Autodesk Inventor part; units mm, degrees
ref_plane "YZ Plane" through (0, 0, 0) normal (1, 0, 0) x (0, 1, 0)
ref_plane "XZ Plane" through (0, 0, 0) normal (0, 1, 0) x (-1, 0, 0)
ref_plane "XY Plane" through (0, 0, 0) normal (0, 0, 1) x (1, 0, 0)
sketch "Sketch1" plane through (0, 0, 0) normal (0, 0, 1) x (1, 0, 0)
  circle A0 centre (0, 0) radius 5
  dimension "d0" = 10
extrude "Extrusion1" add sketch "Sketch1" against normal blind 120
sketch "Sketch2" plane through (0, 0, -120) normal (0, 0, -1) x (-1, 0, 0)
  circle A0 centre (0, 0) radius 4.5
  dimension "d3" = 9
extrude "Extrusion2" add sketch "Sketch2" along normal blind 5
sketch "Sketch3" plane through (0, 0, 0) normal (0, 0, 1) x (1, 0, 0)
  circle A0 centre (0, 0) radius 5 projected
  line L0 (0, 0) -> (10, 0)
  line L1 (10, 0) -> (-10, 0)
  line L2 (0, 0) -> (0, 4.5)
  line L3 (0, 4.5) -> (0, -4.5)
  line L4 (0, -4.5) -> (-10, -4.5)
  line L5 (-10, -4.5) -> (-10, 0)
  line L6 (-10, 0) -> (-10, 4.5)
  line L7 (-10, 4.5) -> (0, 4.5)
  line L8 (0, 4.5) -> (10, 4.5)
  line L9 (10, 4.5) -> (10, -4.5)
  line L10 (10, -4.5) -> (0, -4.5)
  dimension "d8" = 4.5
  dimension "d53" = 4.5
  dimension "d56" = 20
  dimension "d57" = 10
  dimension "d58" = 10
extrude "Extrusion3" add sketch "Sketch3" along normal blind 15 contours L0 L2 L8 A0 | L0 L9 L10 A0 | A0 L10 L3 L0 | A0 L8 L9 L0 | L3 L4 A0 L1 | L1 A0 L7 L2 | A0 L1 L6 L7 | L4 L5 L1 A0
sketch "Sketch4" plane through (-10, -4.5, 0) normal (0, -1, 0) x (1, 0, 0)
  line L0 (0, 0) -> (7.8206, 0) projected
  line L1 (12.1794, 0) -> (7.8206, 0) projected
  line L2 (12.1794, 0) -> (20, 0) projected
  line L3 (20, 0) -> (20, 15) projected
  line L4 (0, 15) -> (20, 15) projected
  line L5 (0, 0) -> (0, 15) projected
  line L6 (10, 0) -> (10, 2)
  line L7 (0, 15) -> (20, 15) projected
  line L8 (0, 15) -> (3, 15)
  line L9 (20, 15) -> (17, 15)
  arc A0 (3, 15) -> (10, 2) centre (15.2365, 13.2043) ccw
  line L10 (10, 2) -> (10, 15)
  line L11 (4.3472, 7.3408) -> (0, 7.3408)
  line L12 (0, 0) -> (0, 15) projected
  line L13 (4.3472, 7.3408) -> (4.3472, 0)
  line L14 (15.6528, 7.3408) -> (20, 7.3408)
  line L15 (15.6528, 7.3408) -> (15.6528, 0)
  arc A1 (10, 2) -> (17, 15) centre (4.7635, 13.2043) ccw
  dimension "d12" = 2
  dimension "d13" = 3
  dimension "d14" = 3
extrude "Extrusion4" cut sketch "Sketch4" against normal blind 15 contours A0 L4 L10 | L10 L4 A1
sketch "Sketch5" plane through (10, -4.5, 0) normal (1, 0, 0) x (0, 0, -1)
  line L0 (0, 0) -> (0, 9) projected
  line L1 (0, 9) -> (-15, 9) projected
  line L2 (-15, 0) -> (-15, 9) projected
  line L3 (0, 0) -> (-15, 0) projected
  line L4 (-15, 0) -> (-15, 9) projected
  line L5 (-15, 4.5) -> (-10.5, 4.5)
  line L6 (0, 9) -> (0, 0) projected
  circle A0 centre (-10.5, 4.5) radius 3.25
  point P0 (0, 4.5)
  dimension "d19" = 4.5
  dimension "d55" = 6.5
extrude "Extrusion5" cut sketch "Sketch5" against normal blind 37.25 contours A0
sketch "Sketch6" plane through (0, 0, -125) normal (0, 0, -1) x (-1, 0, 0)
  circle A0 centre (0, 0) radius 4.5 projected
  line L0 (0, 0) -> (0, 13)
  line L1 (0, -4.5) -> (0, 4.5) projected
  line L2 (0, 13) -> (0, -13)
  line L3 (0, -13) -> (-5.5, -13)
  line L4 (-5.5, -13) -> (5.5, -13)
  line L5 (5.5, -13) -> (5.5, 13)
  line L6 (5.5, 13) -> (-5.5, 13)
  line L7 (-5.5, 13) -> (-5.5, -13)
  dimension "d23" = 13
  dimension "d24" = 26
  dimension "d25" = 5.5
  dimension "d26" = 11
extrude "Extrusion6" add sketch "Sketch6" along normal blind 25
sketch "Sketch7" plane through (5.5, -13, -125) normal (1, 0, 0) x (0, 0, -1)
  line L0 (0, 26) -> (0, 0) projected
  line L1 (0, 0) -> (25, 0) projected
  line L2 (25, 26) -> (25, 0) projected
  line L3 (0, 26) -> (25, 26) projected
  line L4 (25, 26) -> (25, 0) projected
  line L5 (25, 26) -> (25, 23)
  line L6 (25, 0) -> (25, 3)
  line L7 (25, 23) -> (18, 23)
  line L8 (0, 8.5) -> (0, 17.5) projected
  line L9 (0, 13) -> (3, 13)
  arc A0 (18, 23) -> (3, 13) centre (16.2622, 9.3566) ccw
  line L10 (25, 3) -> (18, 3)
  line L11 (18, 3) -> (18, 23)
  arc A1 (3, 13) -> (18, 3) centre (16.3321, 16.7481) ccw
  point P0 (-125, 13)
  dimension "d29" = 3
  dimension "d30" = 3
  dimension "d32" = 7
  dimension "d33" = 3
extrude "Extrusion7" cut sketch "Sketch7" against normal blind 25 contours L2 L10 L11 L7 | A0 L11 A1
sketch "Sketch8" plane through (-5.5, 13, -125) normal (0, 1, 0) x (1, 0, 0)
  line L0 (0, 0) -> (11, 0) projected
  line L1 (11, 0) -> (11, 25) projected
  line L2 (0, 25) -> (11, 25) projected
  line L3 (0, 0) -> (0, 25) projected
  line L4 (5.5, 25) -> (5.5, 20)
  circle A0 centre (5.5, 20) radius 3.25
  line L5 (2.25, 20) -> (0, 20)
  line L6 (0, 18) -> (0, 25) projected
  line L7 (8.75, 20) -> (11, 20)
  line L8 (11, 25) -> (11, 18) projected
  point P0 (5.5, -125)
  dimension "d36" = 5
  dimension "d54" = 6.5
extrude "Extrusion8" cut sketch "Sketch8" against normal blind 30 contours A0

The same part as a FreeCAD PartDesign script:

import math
import FreeCAD as App
import Part
import Sketcher

V = App.Vector

doc = App.newDocument("Part")
params = doc.addObject("Spreadsheet::Sheet", "Params")
for row, (alias, value) in enumerate([
    ("sketch1_diameter", "10 mm"),
    ("pad1_length", "120 mm"),
    ("sketch2_diameter", "9 mm"),
    ("pad2_length", "5 mm"),
    ("sketch3_width", "20 mm"),
    ("pad3_length", "15 mm"),
    ("sketch4_width", "14 mm"),
    ("pocket1_length", "15 mm"),
    ("sketch5_diameter", "6.5 mm"),
    ("pocket2_length", "37.25 mm"),
    ("sketch6_width", "11 mm"),
    ("sketch6_height", "26 mm"),
    ("pad4_length", "25 mm"),
    ("sketch7_height", "7 mm"),
    ("sketch7_width", "20 mm"),
    ("pocket3_length", "25 mm"),
    ("sketch8_diameter", "6.5 mm"),
    ("pocket4_length", "30 mm"),
], start=1):
    params.set(f"A{row}", alias)
    params.set(f"B{row}", "=" + value)
    params.setAlias(f"B{row}", alias)

body = doc.addObject("PartDesign::Body", "Body")

# Sketch on XY plane
sketch1 = body.newObject("Sketcher::SketchObject", "Sketch")
sketch1.AttachmentSupport = (doc.getObject("XY_Plane"), [""])
sketch1.MapMode = "FlatFace"
sketch1.addGeometry(Part.Circle(V(0, 0, 0), V(0, 0, 1), 5), False)
sketch1.addConstraint(Sketcher.Constraint("Coincident", 0, 3, -1, 1))
sketch1.addConstraint(Sketcher.Constraint("Diameter", 0, 10.0))
sketch1.setExpression("Constraints[1]", "Params.sketch1_diameter")
pad1 = body.newObject("PartDesign::Pad", "Pad")
pad1.Profile = sketch1
pad1.setExpression("Length", "Params.pad1_length")
pad1.Reversed = True

# Sketch on XY plane
sketch2 = body.newObject("Sketcher::SketchObject", "Sketch001")
sketch2.AttachmentSupport = (doc.getObject("XY_Plane"), [""])
sketch2.MapMode = "FlatFace"
sketch2.AttachmentOffset = App.Placement(V(0, 0, -120), App.Rotation())
sketch2.addGeometry(Part.Circle(V(0, 0, 0), V(0, 0, 1), 4.5), False)
sketch2.addConstraint(Sketcher.Constraint("Coincident", 0, 3, -1, 1))
sketch2.addConstraint(Sketcher.Constraint("Diameter", 0, 9.0))
sketch2.setExpression("Constraints[1]", "Params.sketch2_diameter")
pad2 = body.newObject("PartDesign::Pad", "Pad001")
pad2.Profile = sketch2
pad2.setExpression("Length", "Params.pad2_length")
pad2.Reversed = True

# Sketch on XY plane
sketch3 = body.newObject("Sketcher::SketchObject", "Sketch002")
sketch3.AttachmentSupport = (doc.getObject("XY_Plane"), [""])
sketch3.MapMode = "FlatFace"
sketch3.addGeometry(Part.LineSegment(V(-10, 4, 0), V(-10, -4, 0)), False)
sketch3.addGeometry(Part.LineSegment(V(-10, -4, 0), V(10, -4, 0)), False)
sketch3.addGeometry(Part.LineSegment(V(10, -4, 0), V(10, 4, 0)), False)
sketch3.addGeometry(Part.LineSegment(V(10, 4, 0), V(-10, 4, 0)), False)
sketch3.addConstraint(Sketcher.Constraint("Coincident", 0, 2, 1, 1))
sketch3.addConstraint(Sketcher.Constraint("Coincident", 1, 2, 2, 1))
sketch3.addConstraint(Sketcher.Constraint("Coincident", 2, 2, 3, 1))
sketch3.addConstraint(Sketcher.Constraint("Coincident", 3, 2, 0, 1))
sketch3.addConstraint(Sketcher.Constraint("Vertical", 0))
sketch3.addConstraint(Sketcher.Constraint("Horizontal", 1))
sketch3.addConstraint(Sketcher.Constraint("Vertical", 2))
sketch3.addConstraint(Sketcher.Constraint("Horizontal", 3))
sketch3.addConstraint(Sketcher.Constraint("Symmetric", 0, 2, 2, 2, -1, 1))
sketch3.addConstraint(Sketcher.Constraint("DistanceX", 1, 1, 1, 2, 20.0))
sketch3.addConstraint(Sketcher.Constraint("DistanceY", 0, 2, -1, 1, 4.5))
sketch3.setExpression("Constraints[9]", "Params.sketch3_width")
pad3 = body.newObject("PartDesign::Pad", "Pad002")
pad3.Profile = sketch3
pad3.setExpression("Length", "Params.pad3_length")

# Sketch on XZ plane
sketch4 = body.newObject("Sketcher::SketchObject", "Sketch003")
sketch4.AttachmentSupport = (doc.getObject("XZ_Plane"), [""])
sketch4.MapMode = "FlatFace"
sketch4.AttachmentOffset = App.Placement(V(0, 0, 4.5), App.Rotation())
sketch4.addGeometry(Part.ArcOfCircle(Part.Circle(V(5, 13, 0), V(0, 0, 1), 12), math.radians(172), math.radians(245)), False)
sketch4.addGeometry(Part.ArcOfCircle(Part.Circle(V(-5, 13, 0), V(0, 0, 1), 12), math.radians(-65), math.radians(8)), False)
sketch4.addGeometry(Part.LineSegment(V(7, 15, 0), V(-7, 15, 0)), False)
sketch4.addConstraint(Sketcher.Constraint("Coincident", 0, 2, 1, 1))
sketch4.addConstraint(Sketcher.Constraint("Coincident", 1, 2, 2, 1))
sketch4.addConstraint(Sketcher.Constraint("Coincident", 2, 2, 0, 1))
sketch4.addConstraint(Sketcher.Constraint("Horizontal", 2))
sketch4.addConstraint(Sketcher.Constraint("Equal", 0, 1))
sketch4.addConstraint(Sketcher.Constraint("Symmetric", 0, 3, 1, 3, -2))
sketch4.addConstraint(Sketcher.Constraint("DistanceY", -1, 1, 0, 2, 2.0))
sketch4.addConstraint(Sketcher.Constraint("DistanceX", 2, 2, 2, 1, 14.0))
sketch4.addConstraint(Sketcher.Constraint("DistanceY", -1, 1, 1, 2, 15.0))
sketch4.addConstraint(Sketcher.Constraint("Radius", 0, 12.3676))
sketch4.setExpression("Constraints[7]", "Params.sketch4_width")
pocket1 = body.newObject("PartDesign::Pocket", "Pocket")
pocket1.Profile = sketch4
pocket1.setExpression("Length", "Params.pocket1_length")

# Sketch on YZ plane
sketch5 = body.newObject("Sketcher::SketchObject", "Sketch004")
sketch5.AttachmentSupport = (doc.getObject("YZ_Plane"), [""])
sketch5.MapMode = "FlatFace"
sketch5.AttachmentOffset = App.Placement(V(0, 0, 10), App.Rotation())
sketch5.addGeometry(Part.Circle(V(0, 10.5, 0), V(0, 0, 1), 3.2), False)
sketch5.addConstraint(Sketcher.Constraint("PointOnObject", 0, 3, -2))
sketch5.addConstraint(Sketcher.Constraint("Diameter", 0, 6.5))
sketch5.addConstraint(Sketcher.Constraint("DistanceY", -1, 1, 0, 3, 10.5))
sketch5.setExpression("Constraints[1]", "Params.sketch5_diameter")
pocket2 = body.newObject("PartDesign::Pocket", "Pocket001")
pocket2.Profile = sketch5
pocket2.setExpression("Length", "Params.pocket2_length")

# Sketch on XY plane
sketch6 = body.newObject("Sketcher::SketchObject", "Sketch005")
sketch6.AttachmentSupport = (doc.getObject("XY_Plane"), [""])
sketch6.MapMode = "FlatFace"
sketch6.AttachmentOffset = App.Placement(V(0, 0, -125), App.Rotation())
sketch6.addGeometry(Part.LineSegment(V(-6, 13, 0), V(6, 13, 0)), False)
sketch6.addGeometry(Part.LineSegment(V(6, 13, 0), V(6, -13, 0)), False)
sketch6.addGeometry(Part.LineSegment(V(6, -13, 0), V(-6, -13, 0)), False)
sketch6.addGeometry(Part.LineSegment(V(-6, -13, 0), V(-6, 13, 0)), False)
sketch6.addConstraint(Sketcher.Constraint("Coincident", 0, 2, 1, 1))
sketch6.addConstraint(Sketcher.Constraint("Coincident", 1, 2, 2, 1))
sketch6.addConstraint(Sketcher.Constraint("Coincident", 2, 2, 3, 1))
sketch6.addConstraint(Sketcher.Constraint("Coincident", 3, 2, 0, 1))
sketch6.addConstraint(Sketcher.Constraint("Horizontal", 0))
sketch6.addConstraint(Sketcher.Constraint("Vertical", 1))
sketch6.addConstraint(Sketcher.Constraint("Horizontal", 2))
sketch6.addConstraint(Sketcher.Constraint("Vertical", 3))
sketch6.addConstraint(Sketcher.Constraint("Symmetric", 0, 2, 2, 2, -1, 1))
sketch6.addConstraint(Sketcher.Constraint("DistanceX", 0, 1, 0, 2, 11.0))
sketch6.addConstraint(Sketcher.Constraint("DistanceY", 1, 2, 1, 1, 26.0))
sketch6.setExpression("Constraints[9]", "Params.sketch6_width")
sketch6.setExpression("Constraints[10]", "Params.sketch6_height")
pad4 = body.newObject("PartDesign::Pad", "Pad003")
pad4.Profile = sketch6
pad4.setExpression("Length", "Params.pad4_length")
pad4.Reversed = True

# Sketch on YZ plane
sketch7 = body.newObject("Sketcher::SketchObject", "Sketch006")
sketch7.AttachmentSupport = (doc.getObject("YZ_Plane"), [""])
sketch7.MapMode = "FlatFace"
sketch7.AttachmentOffset = App.Placement(V(0, 0, 5.5), App.Rotation())
sketch7.addGeometry(Part.LineSegment(V(-10, -150, 0), V(10, -150, 0)), False)
sketch7.addGeometry(Part.LineSegment(V(10, -150, 0), V(10, -143, 0)), False)
sketch7.addGeometry(Part.ArcOfCircle(Part.Circle(V(-4, -141, 0), V(0, 0, 1), 14), math.radians(-7), math.radians(75)), False)
sketch7.addGeometry(Part.ArcOfCircle(Part.Circle(V(4, -141, 0), V(0, 0, 1), 14), math.radians(106), math.radians(187)), False)
sketch7.addGeometry(Part.LineSegment(V(-10, -143, 0), V(-10, -150, 0)), False)
sketch7.addConstraint(Sketcher.Constraint("Coincident", 0, 2, 1, 1))
sketch7.addConstraint(Sketcher.Constraint("Coincident", 1, 2, 2, 1))
sketch7.addConstraint(Sketcher.Constraint("Coincident", 2, 2, 3, 1))
sketch7.addConstraint(Sketcher.Constraint("Coincident", 3, 2, 4, 1))
sketch7.addConstraint(Sketcher.Constraint("Coincident", 4, 2, 0, 1))
sketch7.addConstraint(Sketcher.Constraint("Horizontal", 0))
sketch7.addConstraint(Sketcher.Constraint("Vertical", 1))
sketch7.addConstraint(Sketcher.Constraint("Vertical", 4))
sketch7.addConstraint(Sketcher.Constraint("Symmetric", 1, 2, 3, 2, -2))
sketch7.addConstraint(Sketcher.Constraint("PointOnObject", 2, 2, -2))
sketch7.addConstraint(Sketcher.Constraint("DistanceY", 1, 1, 1, 2, 7.0))
sketch7.addConstraint(Sketcher.Constraint("DistanceX", 0, 1, 0, 2, 20.0))
sketch7.addConstraint(Sketcher.Constraint("DistanceY", 0, 2, -1, 1, 150.0))
sketch7.addConstraint(Sketcher.Constraint("DistanceY", 2, 2, -1, 1, 128.0))
sketch7.addConstraint(Sketcher.Constraint("Radius", 3, 13.849))
sketch7.addConstraint(Sketcher.Constraint("Radius", 2, 13.7536))
sketch7.setExpression("Constraints[10]", "Params.sketch7_height")
sketch7.setExpression("Constraints[11]", "Params.sketch7_width")
pocket3 = body.newObject("PartDesign::Pocket", "Pocket002")
pocket3.Profile = sketch7
pocket3.setExpression("Length", "Params.pocket3_length")

# Sketch on XZ plane
sketch8 = body.newObject("Sketcher::SketchObject", "Sketch007")
sketch8.AttachmentSupport = (doc.getObject("XZ_Plane"), [""])
sketch8.MapMode = "FlatFace"
sketch8.AttachmentOffset = App.Placement(V(0, 0, -13), App.Rotation())
sketch8.addGeometry(Part.Circle(V(0, -145, 0), V(0, 0, 1), 3.2), False)
sketch8.addConstraint(Sketcher.Constraint("PointOnObject", 0, 3, -2))
sketch8.addConstraint(Sketcher.Constraint("Diameter", 0, 6.5))
sketch8.addConstraint(Sketcher.Constraint("DistanceY", 0, 3, -1, 1, 145.0))
sketch8.setExpression("Constraints[1]", "Params.sketch8_diameter")
pocket4 = body.newObject("PartDesign::Pocket", "Pocket003")
pocket4.Profile = sketch8
pocket4.setExpression("Length", "Params.pocket4_length")
pocket4.Reversed = True

doc.recompute()
